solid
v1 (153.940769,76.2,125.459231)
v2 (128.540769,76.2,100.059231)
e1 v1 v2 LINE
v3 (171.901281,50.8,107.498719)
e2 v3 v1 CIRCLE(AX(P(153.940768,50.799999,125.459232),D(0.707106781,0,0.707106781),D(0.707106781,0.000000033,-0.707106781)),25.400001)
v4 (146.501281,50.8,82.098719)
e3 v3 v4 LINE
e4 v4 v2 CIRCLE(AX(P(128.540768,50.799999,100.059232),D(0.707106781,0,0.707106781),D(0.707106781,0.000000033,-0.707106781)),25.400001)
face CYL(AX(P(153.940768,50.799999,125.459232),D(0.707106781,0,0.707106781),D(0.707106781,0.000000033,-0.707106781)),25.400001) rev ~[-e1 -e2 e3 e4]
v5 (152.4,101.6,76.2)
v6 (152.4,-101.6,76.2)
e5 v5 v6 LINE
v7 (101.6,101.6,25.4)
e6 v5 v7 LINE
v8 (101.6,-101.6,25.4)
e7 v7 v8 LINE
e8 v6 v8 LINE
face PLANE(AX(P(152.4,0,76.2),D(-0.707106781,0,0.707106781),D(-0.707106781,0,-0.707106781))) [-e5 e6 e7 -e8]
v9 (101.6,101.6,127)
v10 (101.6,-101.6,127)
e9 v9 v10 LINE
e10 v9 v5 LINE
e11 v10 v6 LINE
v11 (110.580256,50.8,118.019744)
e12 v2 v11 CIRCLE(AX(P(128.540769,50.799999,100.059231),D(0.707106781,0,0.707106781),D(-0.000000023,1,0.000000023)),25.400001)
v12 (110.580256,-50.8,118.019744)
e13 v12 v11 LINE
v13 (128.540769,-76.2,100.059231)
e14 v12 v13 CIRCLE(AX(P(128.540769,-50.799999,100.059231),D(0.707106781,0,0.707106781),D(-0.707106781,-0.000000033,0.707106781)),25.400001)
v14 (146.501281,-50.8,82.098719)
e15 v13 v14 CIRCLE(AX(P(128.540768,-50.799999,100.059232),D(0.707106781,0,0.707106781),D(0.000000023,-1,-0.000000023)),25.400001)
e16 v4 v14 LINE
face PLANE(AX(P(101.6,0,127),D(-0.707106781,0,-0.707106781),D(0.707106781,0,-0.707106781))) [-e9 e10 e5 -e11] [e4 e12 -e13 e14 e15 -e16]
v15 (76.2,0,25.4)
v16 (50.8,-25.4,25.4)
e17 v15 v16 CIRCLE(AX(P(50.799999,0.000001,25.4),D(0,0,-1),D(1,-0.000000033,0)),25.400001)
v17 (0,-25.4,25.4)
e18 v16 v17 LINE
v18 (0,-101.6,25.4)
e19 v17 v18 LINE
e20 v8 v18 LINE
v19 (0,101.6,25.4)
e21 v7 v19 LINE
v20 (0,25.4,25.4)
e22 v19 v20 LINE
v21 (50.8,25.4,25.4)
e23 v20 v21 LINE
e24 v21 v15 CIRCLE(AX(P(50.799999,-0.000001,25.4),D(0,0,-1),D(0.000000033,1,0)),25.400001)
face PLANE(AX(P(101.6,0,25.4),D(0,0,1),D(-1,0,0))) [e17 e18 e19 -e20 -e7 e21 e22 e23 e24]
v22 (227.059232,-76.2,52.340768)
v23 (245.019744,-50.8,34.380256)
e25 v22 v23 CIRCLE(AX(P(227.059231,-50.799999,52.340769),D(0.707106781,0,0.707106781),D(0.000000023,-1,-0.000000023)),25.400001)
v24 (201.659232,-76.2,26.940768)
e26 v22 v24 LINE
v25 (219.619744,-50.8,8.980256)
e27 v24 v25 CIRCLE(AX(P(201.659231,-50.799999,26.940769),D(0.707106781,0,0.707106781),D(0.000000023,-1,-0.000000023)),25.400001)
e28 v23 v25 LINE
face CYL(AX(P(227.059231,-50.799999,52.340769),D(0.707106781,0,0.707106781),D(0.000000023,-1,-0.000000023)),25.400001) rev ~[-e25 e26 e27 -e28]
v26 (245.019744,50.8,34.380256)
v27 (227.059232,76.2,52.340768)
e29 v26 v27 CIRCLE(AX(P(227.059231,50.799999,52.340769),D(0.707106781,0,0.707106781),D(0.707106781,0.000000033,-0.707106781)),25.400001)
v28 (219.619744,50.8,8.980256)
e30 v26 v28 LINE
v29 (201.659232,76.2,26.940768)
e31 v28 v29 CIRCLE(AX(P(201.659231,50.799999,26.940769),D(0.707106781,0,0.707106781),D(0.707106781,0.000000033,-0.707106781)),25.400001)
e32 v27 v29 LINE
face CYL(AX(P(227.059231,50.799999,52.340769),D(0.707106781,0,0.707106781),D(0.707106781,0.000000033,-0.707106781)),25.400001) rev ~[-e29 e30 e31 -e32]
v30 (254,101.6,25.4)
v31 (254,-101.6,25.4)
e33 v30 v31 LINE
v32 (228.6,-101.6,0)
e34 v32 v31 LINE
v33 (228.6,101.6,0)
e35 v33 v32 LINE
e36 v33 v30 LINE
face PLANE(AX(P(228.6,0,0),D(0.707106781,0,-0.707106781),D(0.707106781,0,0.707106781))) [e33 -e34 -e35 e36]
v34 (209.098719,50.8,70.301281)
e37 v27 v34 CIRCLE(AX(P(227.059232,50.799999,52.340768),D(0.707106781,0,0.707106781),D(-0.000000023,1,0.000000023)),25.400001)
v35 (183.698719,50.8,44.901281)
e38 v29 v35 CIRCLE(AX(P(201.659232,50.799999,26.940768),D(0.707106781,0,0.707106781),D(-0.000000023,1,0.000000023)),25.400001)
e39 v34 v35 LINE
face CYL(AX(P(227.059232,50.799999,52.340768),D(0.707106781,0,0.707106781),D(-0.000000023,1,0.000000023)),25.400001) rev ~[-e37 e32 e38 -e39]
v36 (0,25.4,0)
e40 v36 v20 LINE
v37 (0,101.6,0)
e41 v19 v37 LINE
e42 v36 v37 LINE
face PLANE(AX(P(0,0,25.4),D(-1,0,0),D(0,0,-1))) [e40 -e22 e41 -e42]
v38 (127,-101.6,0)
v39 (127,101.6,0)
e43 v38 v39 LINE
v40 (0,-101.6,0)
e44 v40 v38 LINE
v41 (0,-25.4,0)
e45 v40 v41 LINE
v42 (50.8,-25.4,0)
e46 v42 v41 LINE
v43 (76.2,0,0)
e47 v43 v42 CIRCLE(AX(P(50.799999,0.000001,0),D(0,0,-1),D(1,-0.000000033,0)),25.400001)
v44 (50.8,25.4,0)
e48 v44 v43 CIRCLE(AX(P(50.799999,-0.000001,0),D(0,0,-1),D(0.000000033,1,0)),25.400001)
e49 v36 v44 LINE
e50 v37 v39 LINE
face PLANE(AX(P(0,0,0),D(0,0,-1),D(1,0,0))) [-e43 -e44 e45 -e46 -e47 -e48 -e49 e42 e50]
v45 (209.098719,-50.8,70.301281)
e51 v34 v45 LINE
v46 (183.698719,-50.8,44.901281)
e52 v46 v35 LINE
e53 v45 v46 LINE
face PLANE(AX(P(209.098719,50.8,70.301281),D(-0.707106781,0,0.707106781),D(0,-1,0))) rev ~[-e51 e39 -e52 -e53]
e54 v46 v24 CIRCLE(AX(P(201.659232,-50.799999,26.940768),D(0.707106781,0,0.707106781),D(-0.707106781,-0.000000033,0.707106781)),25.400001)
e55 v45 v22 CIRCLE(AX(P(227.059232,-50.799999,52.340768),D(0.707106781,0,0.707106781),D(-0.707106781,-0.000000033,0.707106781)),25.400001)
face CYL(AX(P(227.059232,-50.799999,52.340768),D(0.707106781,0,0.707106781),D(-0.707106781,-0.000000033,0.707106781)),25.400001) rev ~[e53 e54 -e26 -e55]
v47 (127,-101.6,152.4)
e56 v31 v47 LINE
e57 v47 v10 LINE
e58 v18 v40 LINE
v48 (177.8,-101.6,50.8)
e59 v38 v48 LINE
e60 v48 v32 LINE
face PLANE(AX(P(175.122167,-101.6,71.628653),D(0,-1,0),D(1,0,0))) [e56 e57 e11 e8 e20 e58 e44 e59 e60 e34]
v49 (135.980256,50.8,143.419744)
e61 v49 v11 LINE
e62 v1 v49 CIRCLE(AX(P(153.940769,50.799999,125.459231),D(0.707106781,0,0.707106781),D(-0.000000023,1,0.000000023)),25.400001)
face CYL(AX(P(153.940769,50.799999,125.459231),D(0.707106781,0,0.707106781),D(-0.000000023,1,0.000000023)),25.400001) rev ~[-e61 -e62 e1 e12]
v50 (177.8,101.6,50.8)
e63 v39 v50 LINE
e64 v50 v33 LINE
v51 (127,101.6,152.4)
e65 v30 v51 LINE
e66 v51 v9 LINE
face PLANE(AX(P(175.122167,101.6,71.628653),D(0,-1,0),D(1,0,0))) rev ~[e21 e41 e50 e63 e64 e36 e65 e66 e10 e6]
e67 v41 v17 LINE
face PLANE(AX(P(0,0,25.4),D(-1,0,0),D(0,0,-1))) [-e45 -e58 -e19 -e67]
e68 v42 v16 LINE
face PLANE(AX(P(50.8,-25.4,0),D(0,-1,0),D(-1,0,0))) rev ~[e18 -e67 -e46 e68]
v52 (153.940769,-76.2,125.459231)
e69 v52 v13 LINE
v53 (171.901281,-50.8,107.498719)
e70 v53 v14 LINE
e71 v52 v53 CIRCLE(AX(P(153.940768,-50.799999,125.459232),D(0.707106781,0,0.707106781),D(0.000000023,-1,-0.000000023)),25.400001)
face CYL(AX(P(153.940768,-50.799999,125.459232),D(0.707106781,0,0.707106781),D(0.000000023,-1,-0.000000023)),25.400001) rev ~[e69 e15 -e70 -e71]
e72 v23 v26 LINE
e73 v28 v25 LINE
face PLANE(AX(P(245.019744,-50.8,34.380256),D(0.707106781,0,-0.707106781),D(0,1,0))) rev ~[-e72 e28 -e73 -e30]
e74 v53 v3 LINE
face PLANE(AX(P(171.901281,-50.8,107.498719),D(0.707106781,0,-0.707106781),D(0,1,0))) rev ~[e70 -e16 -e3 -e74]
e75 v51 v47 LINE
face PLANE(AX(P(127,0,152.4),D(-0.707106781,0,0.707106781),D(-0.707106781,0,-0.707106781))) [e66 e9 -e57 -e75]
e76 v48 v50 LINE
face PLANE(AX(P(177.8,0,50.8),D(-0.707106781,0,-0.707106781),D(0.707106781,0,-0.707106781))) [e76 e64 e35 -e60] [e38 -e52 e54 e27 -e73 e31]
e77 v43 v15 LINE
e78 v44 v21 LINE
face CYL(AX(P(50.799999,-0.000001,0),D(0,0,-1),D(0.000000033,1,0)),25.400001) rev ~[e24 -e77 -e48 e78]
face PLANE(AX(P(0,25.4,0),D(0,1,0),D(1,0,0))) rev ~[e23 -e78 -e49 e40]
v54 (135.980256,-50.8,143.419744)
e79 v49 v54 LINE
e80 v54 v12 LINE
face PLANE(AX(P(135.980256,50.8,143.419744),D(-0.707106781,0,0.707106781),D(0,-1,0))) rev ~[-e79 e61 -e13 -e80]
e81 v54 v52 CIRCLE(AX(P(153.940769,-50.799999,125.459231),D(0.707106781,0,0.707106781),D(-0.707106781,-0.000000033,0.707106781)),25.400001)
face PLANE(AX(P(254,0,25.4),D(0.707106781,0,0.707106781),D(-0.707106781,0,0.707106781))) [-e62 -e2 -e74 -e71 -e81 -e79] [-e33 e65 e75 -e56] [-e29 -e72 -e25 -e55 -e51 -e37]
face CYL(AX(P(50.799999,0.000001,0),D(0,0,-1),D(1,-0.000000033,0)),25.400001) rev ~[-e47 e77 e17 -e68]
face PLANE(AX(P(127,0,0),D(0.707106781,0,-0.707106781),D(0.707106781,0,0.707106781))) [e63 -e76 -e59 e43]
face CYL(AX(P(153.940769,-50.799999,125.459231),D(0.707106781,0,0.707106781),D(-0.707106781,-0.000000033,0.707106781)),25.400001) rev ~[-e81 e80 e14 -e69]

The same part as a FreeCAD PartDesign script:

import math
import FreeCAD as App
import Part
import Sketcher
Q = App.Units.Quantity


def add_polygon(sketch, points):
    """Adds a closed chain of lines whose ends are joined by coincident constraints."""
    first, n = sketch.GeometryCount, len(points)
    for a, b in zip(points, points[1:] + points[:1]):
        sketch.addGeometry(Part.LineSegment(App.Vector(*a, 0), App.Vector(*b, 0)), False)
    for i in range(n):
        sketch.addConstraint(Sketcher.Constraint("Coincident", first + i, 2, first + (i + 1) % n, 1))

doc = App.newDocument("Part")
body = doc.addObject("PartDesign::Body", "Body")

# Sketch on XZ plane
sketch1 = body.newObject("Sketcher::SketchObject", "Sketch")
sketch1.AttachmentSupport = (doc.getObject("XZ_Plane"), [""])
sketch1.MapMode = "FlatFace"
add_polygon(sketch1, [(177.8, 50.8), (228.6, 0), (254, 25.4), (127, 152.4), (101.6, 127), (152.4, 76.2), (101.6, 25.4), (0, 25.4), (0, 0), (127, 0)])  # lines 0-9
sketch1.addConstraint([
    Sketcher.Constraint("Horizontal", 6),
    Sketcher.Constraint("Vertical", 7),
    Sketcher.Constraint("Horizontal", 8),
    Sketcher.Constraint("Coincident", 7, 2, -1, 1),
    Sketcher.Constraint("PointOnObject", 0, 2, -1),
    Sketcher.Constraint("Perpendicular", 0, 1),
    Sketcher.Constraint("Perpendicular", 1, 2),
    Sketcher.Constraint("Perpendicular", 2, 3),
    Sketcher.Constraint("Perpendicular", 3, 4),
    Sketcher.Constraint("Perpendicular", 4, 5),
    Sketcher.Constraint("Parallel", 5, 9),
    Sketcher.Constraint("Horizontal", 1, 2, 5, 2),
    Sketcher.Constraint("Vertical", 3, 2, 5, 2),
    Sketcher.Constraint("Vertical", 2, 2, 8, 2),
    Sketcher.Constraint("Equal", 1, 3),
    Sketcher.Constraint("Equal", 0, 4),
    Sketcher.Constraint("DistanceX", 6, 2, 6, 1, Q("4 in")),
    Sketcher.Constraint("DistanceX", 8, 1, 8, 2, Q("5 in")),
    Sketcher.Constraint("DistanceX", -1, 1, 0, 2, Q("9 in")),
])
pad1 = body.newObject("PartDesign::Pad", "Pad")
pad1.Profile = sketch1
pad1.Length = Q("8 in")
pad1.Midplane = True

# Sketch on XY plane
sketch2 = body.newObject("Sketcher::SketchObject", "Sketch001")
sketch2.AttachmentSupport = (doc.getObject("XY_Plane"), [""])
sketch2.MapMode = "FlatFace"
sketch2.addGeometry([
    Part.LineSegment(App.Vector(0, -25.4, 0), App.Vector(0, 25.4, 0)),  # 0
    Part.LineSegment(App.Vector(0, 25.4, 0), App.Vector(50.8, 25.4, 0)),  # 1
    Part.ArcOfCircle(Part.Circle(App.Vector(50.799999, -0.000001, 0), App.Vector(0, 0, 1), 25.400001), math.radians(0.000002), math.radians(89.999998)),  # 2
    Part.ArcOfCircle(Part.Circle(App.Vector(50.799999, 0.000001, 0), App.Vector(0, 0, 1), 25.400001), math.radians(-89.999998), math.radians(-0.000002)),  # 3
    Part.LineSegment(App.Vector(50.8, -25.4, 0), App.Vector(0, -25.4, 0)),  # 4
], False)
sketch2.addConstraint([
    Sketcher.Constraint("Coincident", 0, 2, 1, 1),
    Sketcher.Constraint("Tangent", 1, 2, 2, 2),
    Sketcher.Constraint("Tangent", 2, 1, 3, 2),
    Sketcher.Constraint("Tangent", 3, 1, 4, 1),
    Sketcher.Constraint("Coincident", 4, 2, 0, 1),
    Sketcher.Constraint("Vertical", 0),
    Sketcher.Constraint("Horizontal", 1),
    Sketcher.Constraint("Horizontal", 4),
    Sketcher.Constraint("Equal", 2, 3),
    Sketcher.Constraint("Symmetric", 0, 2, 4, 2, -1, 1),
    Sketcher.Constraint("PointOnObject", 2, 1, -1),
    Sketcher.Constraint("Equal", 4, 0),
    Sketcher.Constraint("Radius", 2, Q("1 in")),
])
pocket1 = body.newObject("PartDesign::Pocket", "Pocket")
pocket1.Profile = sketch2
pocket1.Length = Q("1 in")
pocket1.Reversed = True

# Sketch on an angled plane
sketch3 = body.newObject("Sketcher::SketchObject", "Sketch002")
sketch3.Placement = App.Placement(App.Vector(139.7, 0, 139.7), App.Rotation(App.Vector(0, 1, 0), App.Vector(-0.707106781, 0, 0.707106781), App.Vector(0.707106781, 0, 0.707106781), "ZXY"))
sketch3.addGeometry([
    Part.ArcOfCircle(Part.Circle(App.Vector(-50.799999, -20.139487, 0), App.Vector(0, 0, 1), 25.400001), math.radians(-179.999998), math.radians(-90.000002)),  # 0
    Part.LineSegment(App.Vector(-50.8, -45.539488, 0), App.Vector(50.8, -45.539488, 0)),  # 1
    Part.ArcOfCircle(Part.Circle(App.Vector(50.799999, -20.139487, 0), App.Vector(0, 0, 1), 25.400001), math.radians(-89.999998), math.radians(-0.000002)),  # 2
    Part.ArcOfCircle(Part.Circle(App.Vector(50.799999, -20.139489, 0), App.Vector(0, 0, 1), 25.400001), math.radians(0.000002), math.radians(89.999998)),  # 3
    Part.LineSegment(App.Vector(50.8, 5.260512, 0), App.Vector(-50.8, 5.260512, 0)),  # 4
    Part.ArcOfCircle(Part.Circle(App.Vector(-50.799999, -20.139489, 0), App.Vector(0, 0, 1), 25.400001), math.radians(90.000002), math.radians(179.999998)),  # 5
    Part.ArcOfCircle(Part.Circle(App.Vector(50.799999, -123.544609, 0), App.Vector(0, 0, 1), 25.400001), math.radians(-89.999998), math.radians(-0.000002)),  # 6
    Part.ArcOfCircle(Part.Circle(App.Vector(50.799999, -123.544611, 0), App.Vector(0, 0, 1), 25.400001), math.radians(0.000002), math.radians(89.999998)),  # 7
    Part.LineSegment(App.Vector(50.8, -98.14461, 0), App.Vector(-50.8, -98.14461, 0)),  # 8
    Part.ArcOfCircle(Part.Circle(App.Vector(-50.799999, -123.544611, 0), App.Vector(0, 0, 1), 25.400001), math.radians(90.000002), math.radians(179.999998)),  # 9
    Part.ArcOfCircle(Part.Circle(App.Vector(-50.799999, -123.544609, 0), App.Vector(0, 0, 1), 25.400001), math.radians(-179.999998), math.radians(-90.000002)),  # 10
    Part.LineSegment(App.Vector(-50.8, -148.94461, 0), App.Vector(50.8, -148.94461, 0)),  # 11
], False)
sketch3.addConstraint([
    Sketcher.Constraint("Tangent", 0, 2, 1, 1),
    Sketcher.Constraint("Tangent", 1, 2, 2, 1),
    Sketcher.Constraint("Tangent", 2, 2, 3, 1),
    Sketcher.Constraint("Tangent", 3, 2, 4, 1),
    Sketcher.Constraint("Tangent", 4, 2, 5, 1),
    Sketcher.Constraint("Tangent", 5, 2, 0, 1),
    Sketcher.Constraint("Tangent", 6, 2, 7, 1),
    Sketcher.Constraint("Tangent", 7, 2, 8, 1),
    Sketcher.Constraint("Tangent", 8, 2, 9, 1),
    Sketcher.Constraint("Tangent", 9, 2, 10, 1),
    Sketcher.Constraint("Tangent", 10, 2, 11, 1),
    Sketcher.Constraint("Tangent", 11, 2, 6, 1),
    Sketcher.Constraint("Horizontal", 1),
    Sketcher.Constraint("Horizontal", 4),
    Sketcher.Constraint("Horizontal", 8),
    Sketcher.Constraint("Horizontal", 11),
    Sketcher.Constraint("Equal", 0, 2),
    Sketcher.Constraint("Equal", 2, 3),
    Sketcher.Constraint("Equal", 5, 6),
    Sketcher.Constraint("Equal", 6, 7),
    Sketcher.Constraint("Equal", 7, 9),
    Sketcher.Constraint("Symmetric", 2, 2, 5, 2, -2),
    Sketcher.Constraint("Symmetric", 6, 2, 9, 2, -2),
    Sketcher.Constraint("Horizontal", 5, 3, 2, 2),
    Sketcher.Constraint("Horizontal", 10, 3, 6, 2),
    Sketcher.Constraint("Vertical", 3, 3, 6, 3),
    Sketcher.Constraint("Radius", 0, Q("1 in")),
    Sketcher.Constraint("DistanceX", 1, 1, 1, 2, Q("4 in")),
    Sketcher.Constraint("DistanceY", 3, 3, -1, 1, Q("20.139489 mm")),
    Sketcher.Constraint("DistanceY", 6, 3, -1, 1, Q("123.544609 mm")),
])
pocket2 = body.newObject("PartDesign::Pocket", "Pocket001")
pocket2.Profile = sketch3
pocket2.Length = Q("1.49 in")

doc.recompute()
